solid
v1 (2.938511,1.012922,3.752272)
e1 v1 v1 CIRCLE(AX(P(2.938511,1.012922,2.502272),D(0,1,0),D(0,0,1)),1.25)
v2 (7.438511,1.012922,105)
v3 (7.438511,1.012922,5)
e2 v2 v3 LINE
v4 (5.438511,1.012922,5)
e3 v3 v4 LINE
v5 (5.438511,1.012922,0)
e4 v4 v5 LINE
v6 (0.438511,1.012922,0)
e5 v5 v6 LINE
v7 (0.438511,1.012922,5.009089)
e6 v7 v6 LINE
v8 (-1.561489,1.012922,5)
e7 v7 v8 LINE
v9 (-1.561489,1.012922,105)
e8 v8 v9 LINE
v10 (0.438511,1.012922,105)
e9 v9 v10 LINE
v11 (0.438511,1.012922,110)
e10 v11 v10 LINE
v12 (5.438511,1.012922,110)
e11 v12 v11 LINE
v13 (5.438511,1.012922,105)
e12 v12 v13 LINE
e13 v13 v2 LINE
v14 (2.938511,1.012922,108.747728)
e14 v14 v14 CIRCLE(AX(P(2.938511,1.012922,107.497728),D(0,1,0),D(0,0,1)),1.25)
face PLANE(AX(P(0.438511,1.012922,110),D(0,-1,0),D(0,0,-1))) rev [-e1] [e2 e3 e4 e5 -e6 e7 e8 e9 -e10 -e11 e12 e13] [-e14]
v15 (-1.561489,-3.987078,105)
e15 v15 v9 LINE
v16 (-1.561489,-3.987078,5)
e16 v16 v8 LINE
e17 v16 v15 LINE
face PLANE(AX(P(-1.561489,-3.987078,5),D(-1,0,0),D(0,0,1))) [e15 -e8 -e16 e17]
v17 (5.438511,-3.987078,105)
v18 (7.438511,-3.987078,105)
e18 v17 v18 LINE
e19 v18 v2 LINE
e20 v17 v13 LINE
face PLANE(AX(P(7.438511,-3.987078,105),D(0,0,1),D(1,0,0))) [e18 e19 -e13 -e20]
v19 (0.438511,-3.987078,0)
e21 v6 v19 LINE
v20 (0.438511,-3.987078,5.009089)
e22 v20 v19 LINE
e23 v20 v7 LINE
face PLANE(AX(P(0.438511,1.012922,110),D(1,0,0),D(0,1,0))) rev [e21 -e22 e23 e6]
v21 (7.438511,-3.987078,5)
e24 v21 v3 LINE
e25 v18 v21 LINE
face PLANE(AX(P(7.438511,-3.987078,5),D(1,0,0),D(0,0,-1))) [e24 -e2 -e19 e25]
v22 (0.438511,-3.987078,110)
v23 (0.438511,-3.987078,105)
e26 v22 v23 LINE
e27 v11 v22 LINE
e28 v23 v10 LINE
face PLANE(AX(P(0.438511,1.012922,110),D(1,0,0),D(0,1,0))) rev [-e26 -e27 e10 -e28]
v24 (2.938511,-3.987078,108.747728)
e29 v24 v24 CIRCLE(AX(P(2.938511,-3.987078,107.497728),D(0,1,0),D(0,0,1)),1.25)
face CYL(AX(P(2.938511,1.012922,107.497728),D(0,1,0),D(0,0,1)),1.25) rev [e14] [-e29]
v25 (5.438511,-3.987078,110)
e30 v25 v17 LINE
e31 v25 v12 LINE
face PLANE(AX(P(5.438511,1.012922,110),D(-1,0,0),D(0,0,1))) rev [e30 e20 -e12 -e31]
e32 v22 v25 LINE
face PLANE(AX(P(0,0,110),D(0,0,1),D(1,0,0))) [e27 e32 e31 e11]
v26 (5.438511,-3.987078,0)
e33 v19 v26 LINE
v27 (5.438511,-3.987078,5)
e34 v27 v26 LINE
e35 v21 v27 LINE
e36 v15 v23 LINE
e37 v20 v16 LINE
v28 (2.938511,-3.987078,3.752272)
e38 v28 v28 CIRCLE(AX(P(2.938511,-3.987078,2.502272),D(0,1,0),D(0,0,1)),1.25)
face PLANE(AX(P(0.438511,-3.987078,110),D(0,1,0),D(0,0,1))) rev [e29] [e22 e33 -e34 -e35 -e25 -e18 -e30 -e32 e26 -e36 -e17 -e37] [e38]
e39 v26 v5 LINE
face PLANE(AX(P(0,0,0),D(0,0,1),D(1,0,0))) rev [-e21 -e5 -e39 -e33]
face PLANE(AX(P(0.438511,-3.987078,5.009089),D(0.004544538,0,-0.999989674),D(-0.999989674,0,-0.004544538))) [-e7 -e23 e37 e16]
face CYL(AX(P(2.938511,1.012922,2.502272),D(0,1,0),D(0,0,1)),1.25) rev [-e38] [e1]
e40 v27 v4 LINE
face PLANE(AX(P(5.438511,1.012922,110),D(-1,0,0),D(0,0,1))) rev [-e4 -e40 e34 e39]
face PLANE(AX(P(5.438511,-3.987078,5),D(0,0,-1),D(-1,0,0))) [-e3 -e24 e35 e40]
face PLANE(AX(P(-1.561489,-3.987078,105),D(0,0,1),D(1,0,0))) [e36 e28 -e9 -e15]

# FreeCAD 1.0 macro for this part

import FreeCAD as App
import Part
import Sketcher
from FreeCAD import Vector
Q = App.Units.Quantity


def add_polygon(sketch, points):
    """Adds a closed chain of lines whose ends are joined by coincident constraints."""
    first, n = sketch.GeometryCount, len(points)
    for a, b in zip(points, points[1:] + points[:1]):
        sketch.addGeometry(Part.LineSegment(App.Vector(*a, 0), App.Vector(*b, 0)), False)
    for i in range(n):
        sketch.addConstraint(Sketcher.Constraint("Coincident", first + i, 2, first + (i + 1) % n, 1))

doc = App.newDocument("Part")
body = doc.addObject("PartDesign::Body", "Body")

# Sketch on XY plane
sketch1 = body.newObject("Sketcher::SketchObject", "Sketch")
sketch1.AttachmentSupport = (doc.getObject("XY_Plane"), [""])
sketch1.MapMode = "FlatFace"
add_polygon(sketch1, [(0, 1), (0, -4), (5, -4), (5, 1)])  # lines 0-3
sketch1.addConstraint([
    Sketcher.Constraint("Vertical", 0),
    Sketcher.Constraint("Horizontal", 1),
    Sketcher.Constraint("Vertical", 2),
    Sketcher.Constraint("Horizontal", 3),
    Sketcher.Constraint("Equal", 3, 0),
    Sketcher.Constraint("DistanceX", 1, 1, 1, 2, Q("5 mm")),
    Sketcher.Constraint("DistanceX", -1, 1, 0, 2, Q("0.438511 mm")),
    Sketcher.Constraint("DistanceY", 0, 2, -1, 1, Q("3.987078 mm")),
])
pad1 = body.newObject("PartDesign::Pad", "Pad")
pad1.Profile = sketch1
pad1.Length = 110

# Sketch on XZ plane
sketch2 = body.newObject("Sketcher::SketchObject", "Sketch001")
sketch2.AttachmentSupport = (doc.getObject("XZ_Plane"), [""])
sketch2.MapMode = "FlatFace"
sketch2.AttachmentOffset = App.Placement(Vector(0, 0, -1.012922), App.Rotation())
add_polygon(sketch2, [(5.4, 5), (5.4, 105), (7.4, 105), (7.4, 5)])  # lines 0-3
sketch2.addConstraint([
    Sketcher.Constraint("Vertical", 0),
    Sketcher.Constraint("Horizontal", 1),
    Sketcher.Constraint("Vertical", 2),
    Sketcher.Constraint("Horizontal", 3),
    Sketcher.Constraint("DistanceX", 1, 1, 1, 2, Q("2 mm")),
    Sketcher.Constraint("DistanceY", 0, 1, 0, 2, Q("100 mm")),
    Sketcher.Constraint("DistanceY", -1, 1, 0, 2, Q("105 mm")),
    Sketcher.Constraint("DistanceX", -1, 1, 0, 2, Q("5.438511 mm")),
])
pad2 = body.newObject("PartDesign::Pad", "Pad001")
pad2.Profile = sketch2
pad2.Length = 5

# Sketch on XZ plane
sketch3 = body.newObject("Sketcher::SketchObject", "Sketch002")
sketch3.AttachmentSupport = (doc.getObject("XZ_Plane"), [""])
sketch3.MapMode = "FlatFace"
sketch3.AttachmentOffset = App.Placement(Vector(0, 0, -1.012922), App.Rotation())
add_polygon(sketch3, [(0.4, 5), (-1.6, 5), (-1.6, 105), (0.4, 105)])  # lines 0-3
sketch3.addConstraint([
    Sketcher.Constraint("Vertical", 1),
    Sketcher.Constraint("Horizontal", 2),
    Sketcher.Constraint("Vertical", 3),
    Sketcher.Constraint("DistanceX", 2, 1, 2, 2, Q("2 mm")),
    Sketcher.Constraint("DistanceY", 1, 1, 1, 2, Q("100 mm")),
    Sketcher.Constraint("DistanceY", -1, 1, 0, 2, Q("5 mm")),
    Sketcher.Constraint("DistanceY", 3, 2, 3, 1, Q("99.990911 mm")),
    Sketcher.Constraint("DistanceX", 0, 2, -1, 1, Q("1.561489 mm")),
])
pad3 = body.newObject("PartDesign::Pad", "Pad002")
pad3.Profile = sketch3
pad3.Length = 5

# Sketch on YZ plane
sketch4 = body.newObject("Sketcher::SketchObject", "Sketch003")
sketch4.AttachmentSupport = (doc.getObject("YZ_Plane"), [""])
sketch4.MapMode = "FlatFace"
sketch4.AttachmentOffset = App.Placement(Vector(0, 0, 2.938511), App.Rotation())
add_polygon(sketch4, [(-7.7, 2.5), (1, 2.5), (1, 3.8), (-7, 3.8)])  # lines 0-3
sketch4.addGeometry(Part.LineSegment(Vector(1, 2.5, 0), Vector(-7.7, 2.5, 0)), True)  # axis
sketch4.addConstraint([
    Sketcher.Constraint("Horizontal", 0),
    Sketcher.Constraint("Vertical", 1),
    Sketcher.Constraint("Horizontal", 2),
    Sketcher.Constraint("Horizontal", 4),
    Sketcher.Constraint("Coincident", 4, 1, 0, 2),
    Sketcher.Constraint("Equal", 0, 4),
    Sketcher.Constraint("DistanceX", 2, 2, 2, 1, Q("8 mm")),
    Sketcher.Constraint("Angle", 3, Q("-121 deg")),
    Sketcher.Constraint("DistanceY", 1, 1, 1, 2, Q("1.25 mm")),
    Sketcher.Constraint("DistanceX", -1, 1, 0, 2, Q("1.012922 mm")),
    Sketcher.Constraint("DistanceY", -1, 1, 0, 2, Q("2.502272 mm")),
])
groove = body.newObject("PartDesign::Groove", "Groove")
groove.Profile = sketch4
groove.ReferenceAxis = (sketch4, ["Axis0"])
groove.Angle = 360
doc.recompute()

datumplane = body.newObject("PartDesign::Plane", "DatumPlane")
datumplane.AttachmentSupport = (doc.getObject("XY_Plane"), [""])
datumplane.MapMode = "FlatFace"
datumplane.AttachmentOffset = App.Placement(Vector(0, 0, 55), App.Rotation())
mirrored = body.newObject("PartDesign::Mirrored", "Mirrored")
mirrored.Originals = [groove]
mirrored.MirrorPlane = (datumplane, [""])
body.Tip = mirrored

doc.recompute()
